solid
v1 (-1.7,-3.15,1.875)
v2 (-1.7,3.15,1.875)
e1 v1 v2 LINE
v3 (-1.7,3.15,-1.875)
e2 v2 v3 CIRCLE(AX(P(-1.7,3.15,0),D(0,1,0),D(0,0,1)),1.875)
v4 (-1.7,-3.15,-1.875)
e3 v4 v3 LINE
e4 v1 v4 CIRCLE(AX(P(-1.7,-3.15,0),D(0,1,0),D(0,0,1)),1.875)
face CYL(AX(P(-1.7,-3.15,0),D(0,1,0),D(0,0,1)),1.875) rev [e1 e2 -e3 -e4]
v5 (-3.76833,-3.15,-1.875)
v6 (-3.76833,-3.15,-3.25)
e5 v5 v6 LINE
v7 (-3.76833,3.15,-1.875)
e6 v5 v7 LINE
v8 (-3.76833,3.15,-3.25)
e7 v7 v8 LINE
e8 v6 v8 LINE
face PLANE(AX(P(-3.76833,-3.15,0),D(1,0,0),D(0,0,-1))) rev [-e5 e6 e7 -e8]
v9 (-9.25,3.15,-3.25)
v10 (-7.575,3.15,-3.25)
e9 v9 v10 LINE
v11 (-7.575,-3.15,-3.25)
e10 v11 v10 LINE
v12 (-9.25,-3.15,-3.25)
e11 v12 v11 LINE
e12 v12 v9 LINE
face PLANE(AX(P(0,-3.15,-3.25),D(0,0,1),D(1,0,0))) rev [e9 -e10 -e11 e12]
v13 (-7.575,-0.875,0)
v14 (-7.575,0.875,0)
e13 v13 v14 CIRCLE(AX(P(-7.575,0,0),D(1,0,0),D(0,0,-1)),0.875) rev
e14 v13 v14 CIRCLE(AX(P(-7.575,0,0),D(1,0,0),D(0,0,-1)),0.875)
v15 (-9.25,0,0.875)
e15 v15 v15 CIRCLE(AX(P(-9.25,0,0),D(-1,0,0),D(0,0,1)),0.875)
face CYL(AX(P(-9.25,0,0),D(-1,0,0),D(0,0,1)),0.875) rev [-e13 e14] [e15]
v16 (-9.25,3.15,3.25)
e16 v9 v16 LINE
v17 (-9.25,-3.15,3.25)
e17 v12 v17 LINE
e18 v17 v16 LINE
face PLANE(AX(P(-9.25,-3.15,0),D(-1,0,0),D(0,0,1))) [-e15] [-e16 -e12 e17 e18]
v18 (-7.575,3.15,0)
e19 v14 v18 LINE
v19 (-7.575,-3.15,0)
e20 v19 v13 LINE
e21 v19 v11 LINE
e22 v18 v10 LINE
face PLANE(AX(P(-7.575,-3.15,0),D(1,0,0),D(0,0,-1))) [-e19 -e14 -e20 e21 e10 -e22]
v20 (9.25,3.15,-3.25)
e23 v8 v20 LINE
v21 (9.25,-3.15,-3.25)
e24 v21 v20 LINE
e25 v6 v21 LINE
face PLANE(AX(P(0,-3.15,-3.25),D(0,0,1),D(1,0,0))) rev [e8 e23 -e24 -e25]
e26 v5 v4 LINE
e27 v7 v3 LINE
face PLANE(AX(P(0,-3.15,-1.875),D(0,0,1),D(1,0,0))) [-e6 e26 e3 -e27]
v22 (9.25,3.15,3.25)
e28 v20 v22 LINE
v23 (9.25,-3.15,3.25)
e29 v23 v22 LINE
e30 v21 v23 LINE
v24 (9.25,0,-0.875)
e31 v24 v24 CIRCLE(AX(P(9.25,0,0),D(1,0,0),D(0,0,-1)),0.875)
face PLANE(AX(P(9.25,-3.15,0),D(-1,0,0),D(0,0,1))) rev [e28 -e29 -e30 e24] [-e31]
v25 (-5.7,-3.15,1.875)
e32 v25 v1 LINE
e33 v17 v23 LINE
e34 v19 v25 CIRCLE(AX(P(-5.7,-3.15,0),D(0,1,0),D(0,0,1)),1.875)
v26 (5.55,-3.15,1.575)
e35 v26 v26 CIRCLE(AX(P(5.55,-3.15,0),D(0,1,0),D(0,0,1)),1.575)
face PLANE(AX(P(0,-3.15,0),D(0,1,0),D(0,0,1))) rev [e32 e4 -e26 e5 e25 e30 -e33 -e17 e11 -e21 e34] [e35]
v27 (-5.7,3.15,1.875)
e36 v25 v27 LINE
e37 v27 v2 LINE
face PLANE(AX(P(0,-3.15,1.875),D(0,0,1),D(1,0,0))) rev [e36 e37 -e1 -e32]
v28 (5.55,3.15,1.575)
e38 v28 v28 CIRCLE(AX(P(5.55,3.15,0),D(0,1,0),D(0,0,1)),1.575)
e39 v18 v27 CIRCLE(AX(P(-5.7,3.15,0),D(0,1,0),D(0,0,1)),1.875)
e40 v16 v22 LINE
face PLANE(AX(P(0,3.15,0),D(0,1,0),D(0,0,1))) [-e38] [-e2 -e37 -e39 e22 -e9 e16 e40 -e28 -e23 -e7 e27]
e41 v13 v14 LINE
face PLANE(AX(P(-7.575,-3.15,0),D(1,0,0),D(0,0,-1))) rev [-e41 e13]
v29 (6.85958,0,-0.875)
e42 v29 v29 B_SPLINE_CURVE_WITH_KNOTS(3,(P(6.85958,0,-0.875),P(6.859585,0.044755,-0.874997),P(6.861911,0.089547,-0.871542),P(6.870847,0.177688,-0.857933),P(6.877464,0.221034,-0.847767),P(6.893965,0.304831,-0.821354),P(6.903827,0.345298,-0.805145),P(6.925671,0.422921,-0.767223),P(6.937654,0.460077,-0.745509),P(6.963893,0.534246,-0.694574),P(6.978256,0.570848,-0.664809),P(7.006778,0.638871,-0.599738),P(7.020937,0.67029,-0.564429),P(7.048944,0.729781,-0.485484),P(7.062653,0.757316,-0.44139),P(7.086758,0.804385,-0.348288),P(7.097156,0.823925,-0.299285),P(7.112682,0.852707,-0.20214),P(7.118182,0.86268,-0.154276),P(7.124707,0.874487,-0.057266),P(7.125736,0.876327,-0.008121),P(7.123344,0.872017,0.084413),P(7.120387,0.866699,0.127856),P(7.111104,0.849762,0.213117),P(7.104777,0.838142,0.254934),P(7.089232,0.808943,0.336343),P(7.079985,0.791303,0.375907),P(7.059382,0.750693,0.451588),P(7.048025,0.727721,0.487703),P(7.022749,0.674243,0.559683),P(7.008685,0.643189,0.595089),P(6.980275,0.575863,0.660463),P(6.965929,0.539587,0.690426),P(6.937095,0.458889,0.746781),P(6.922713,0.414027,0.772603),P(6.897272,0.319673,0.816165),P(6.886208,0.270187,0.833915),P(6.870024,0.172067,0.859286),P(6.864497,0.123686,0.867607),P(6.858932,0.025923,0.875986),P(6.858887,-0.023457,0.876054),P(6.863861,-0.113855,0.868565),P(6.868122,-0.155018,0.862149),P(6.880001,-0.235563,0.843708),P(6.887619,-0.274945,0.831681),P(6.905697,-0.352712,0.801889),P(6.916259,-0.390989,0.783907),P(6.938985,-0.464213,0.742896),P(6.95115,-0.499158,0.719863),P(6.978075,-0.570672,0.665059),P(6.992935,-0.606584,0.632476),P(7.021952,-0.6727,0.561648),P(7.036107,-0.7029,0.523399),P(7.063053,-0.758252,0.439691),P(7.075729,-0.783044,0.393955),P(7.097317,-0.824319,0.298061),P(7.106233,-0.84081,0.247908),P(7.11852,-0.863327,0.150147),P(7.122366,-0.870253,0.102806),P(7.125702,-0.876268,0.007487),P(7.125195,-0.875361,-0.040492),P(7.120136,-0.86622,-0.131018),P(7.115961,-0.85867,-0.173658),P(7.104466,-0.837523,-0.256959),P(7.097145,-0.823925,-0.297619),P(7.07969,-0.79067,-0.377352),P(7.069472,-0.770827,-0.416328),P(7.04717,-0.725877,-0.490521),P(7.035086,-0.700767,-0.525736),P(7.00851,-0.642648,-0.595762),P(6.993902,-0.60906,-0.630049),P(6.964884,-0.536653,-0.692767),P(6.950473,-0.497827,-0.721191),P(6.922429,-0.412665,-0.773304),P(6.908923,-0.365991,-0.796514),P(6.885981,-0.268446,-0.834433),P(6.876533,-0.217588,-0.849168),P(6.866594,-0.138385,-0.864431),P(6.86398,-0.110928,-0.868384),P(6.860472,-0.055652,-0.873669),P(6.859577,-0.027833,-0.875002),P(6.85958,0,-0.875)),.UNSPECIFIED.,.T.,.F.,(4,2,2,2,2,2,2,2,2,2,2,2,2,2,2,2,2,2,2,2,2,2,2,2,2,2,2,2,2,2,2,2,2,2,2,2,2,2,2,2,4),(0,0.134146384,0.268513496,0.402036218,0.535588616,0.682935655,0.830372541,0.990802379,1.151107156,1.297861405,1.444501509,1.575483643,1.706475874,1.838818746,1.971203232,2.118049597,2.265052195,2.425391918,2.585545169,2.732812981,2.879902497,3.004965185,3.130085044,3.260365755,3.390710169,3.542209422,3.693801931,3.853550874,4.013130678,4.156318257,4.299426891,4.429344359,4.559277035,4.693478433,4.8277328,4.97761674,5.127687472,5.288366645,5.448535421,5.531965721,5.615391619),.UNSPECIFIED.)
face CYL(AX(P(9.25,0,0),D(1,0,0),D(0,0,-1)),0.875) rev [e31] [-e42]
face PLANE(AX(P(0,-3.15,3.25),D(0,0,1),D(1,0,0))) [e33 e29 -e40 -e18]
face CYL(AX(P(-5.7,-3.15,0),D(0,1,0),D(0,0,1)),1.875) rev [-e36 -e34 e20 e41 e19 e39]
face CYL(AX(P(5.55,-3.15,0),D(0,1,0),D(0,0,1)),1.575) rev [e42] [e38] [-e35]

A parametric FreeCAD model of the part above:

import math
import FreeCAD as App
import Part
import Sketcher

doc = App.newDocument("Part")
body = doc.addObject("PartDesign::Body", "Body")

sketch1 = doc.addObject("Sketcher::SketchObject", "Sketch")
body.addObject(sketch1)
sketch1.AttachmentSupport = (doc.XZ_Plane, [""])
sketch1.MapMode = "FlatFace"
sketch1.addGeometry([
    Part.LineSegment(App.Vector(-7.6, -3.2, 0), App.Vector(-9.2, -3.2, 0)),
    Part.LineSegment(App.Vector(-9.2, -3.2, 0), App.Vector(-9.2, 3.2, 0)),
    Part.LineSegment(App.Vector(-9.2, 3.2, 0), App.Vector(9.2, 3.2, 0)),
    Part.LineSegment(App.Vector(9.2, 3.2, 0), App.Vector(9.2, -3.2, 0)),
    Part.LineSegment(App.Vector(9.2, -3.2, 0), App.Vector(-3.8, -3.2, 0)),
    Part.LineSegment(App.Vector(-3.8, -3.2, 0), App.Vector(-3.8, -1.9, 0)),
    Part.LineSegment(App.Vector(-3.8, -1.9, 0), App.Vector(-1.7, -1.9, 0)),
    Part.ArcOfCircle(Part.Circle(App.Vector(-1.7, 0, 0), App.Vector(0, 0, 1), 1.9), math.radians(-90), math.radians(90)),
    Part.LineSegment(App.Vector(-1.7, 1.9, 0), App.Vector(-5.7, 1.9, 0)),
    Part.ArcOfCircle(Part.Circle(App.Vector(-5.7, 0, 0), App.Vector(0, 0, 1), 1.9), math.radians(90), math.radians(180)),
    Part.LineSegment(App.Vector(-7.6, 0, 0), App.Vector(-7.6, -3.2, 0)),
    Part.Circle(App.Vector(5.5, 0, 0), App.Vector(0, 0, 1), 1.6),
], False)
sketch1.addConstraint([
    Sketcher.Constraint("Coincident", 0, 2, 1, 1),
    Sketcher.Constraint("Coincident", 1, 2, 2, 1),
    Sketcher.Constraint("Coincident", 2, 2, 3, 1),
    Sketcher.Constraint("Coincident", 3, 2, 4, 1),
    Sketcher.Constraint("Coincident", 4, 2, 5, 1),
    Sketcher.Constraint("Coincident", 5, 2, 6, 1),
    Sketcher.Constraint("Tangent", 6, 2, 7, 1),
    Sketcher.Constraint("Tangent", 7, 2, 8, 1),
    Sketcher.Constraint("Tangent", 8, 2, 9, 1),
    Sketcher.Constraint("Tangent", 9, 2, 10, 1),
    Sketcher.Constraint("Coincident", 10, 2, 0, 1),
    Sketcher.Constraint("Horizontal", 0),
    Sketcher.Constraint("Vertical", 1),
    Sketcher.Constraint("Horizontal", 2),
    Sketcher.Constraint("Vertical", 3),
    Sketcher.Constraint("Horizontal", 4),
    Sketcher.Constraint("Vertical", 5),
    Sketcher.Constraint("Horizontal", 6),
    Sketcher.Constraint("Horizontal", 8),
    Sketcher.Constraint("Vertical", 10),
    Sketcher.Constraint("Equal", 7, 9),
    Sketcher.Constraint("Symmetric", 0, 2, 2, 2, -1, 1),
    Sketcher.Constraint("PointOnObject", 7, 3, -1),
    Sketcher.Constraint("PointOnObject", 11, 3, -1),
    Sketcher.Constraint("Horizontal", 0, 2, 3, 2),
    Sketcher.Constraint("Diameter", 11, 3.15),
    Sketcher.Constraint("DistanceX", 8, 2, 8, 1, 4.0),
    Sketcher.Constraint("DistanceX", 2, 1, 2, 2, 18.5),
    Sketcher.Constraint("DistanceY", 1, 1, 1, 2, 6.5),
    Sketcher.Constraint("Radius", 7, 1.875),
    Sketcher.Constraint("DistanceX", 7, 3, -1, 1, 1.7),
    Sketcher.Constraint("DistanceX", 0, 2, 11, 3, 14.8),
    Sketcher.Constraint("DistanceX", 4, 2, 4, 1, 13.01833),
])
pad1 = doc.addObject("PartDesign::Pad", "Pad")
body.addObject(pad1)
pad1.Profile = sketch1
pad1.Type = "TwoLengths"
pad1.Length = 3.15
pad1.Length2 = 3.15
pad1.Reversed = True

sketch2 = doc.addObject("Sketcher::SketchObject", "Sketch001")
body.addObject(sketch2)
sketch2.AttachmentSupport = (doc.YZ_Plane, [""])
sketch2.MapMode = "FlatFace"
sketch2.AttachmentOffset = App.Placement(App.Vector(0, 0, -9.25), App.Rotation())
sketch2.addGeometry(Part.Circle(App.Vector(0, 0, 0), App.Vector(0, 0, 1), 0.9), False)
sketch2.addConstraint([
    Sketcher.Constraint("Coincident", 0, 3, -1, 1),
    Sketcher.Constraint("Diameter", 0, 1.75),
])
doc.recompute()
hole = doc.addObject("PartDesign::Hole", "Hole")
body.addObject(hole)
hole.Profile = sketch2
hole.ThreadType = "None"
hole.Diameter = 1.75
hole.DepthType = "Dimension"
hole.Depth = 1.675
hole.DrillPoint = "Flat"
hole.Reversed = True

sketch3 = doc.addObject("Sketcher::SketchObject", "Sketch002")
body.addObject(sketch3)
sketch3.AttachmentSupport = (doc.YZ_Plane, [""])
sketch3.MapMode = "FlatFace"
sketch3.AttachmentOffset = App.Placement(App.Vector(0, 0, 9.25), App.Rotation())
sketch3.addGeometry(Part.Circle(App.Vector(0, 0, 0), App.Vector(0, 0, 1), 0.9), False)
sketch3.addConstraint([
    Sketcher.Constraint("Coincident", 0, 3, -1, 1),
    Sketcher.Constraint("Diameter", 0, 1.75),
])
pocket1 = doc.addObject("PartDesign::Pocket", "Pocket")
body.addObject(pocket1)
pocket1.Profile = sketch3
pocket1.Length = 2.39042

doc.recompute()
